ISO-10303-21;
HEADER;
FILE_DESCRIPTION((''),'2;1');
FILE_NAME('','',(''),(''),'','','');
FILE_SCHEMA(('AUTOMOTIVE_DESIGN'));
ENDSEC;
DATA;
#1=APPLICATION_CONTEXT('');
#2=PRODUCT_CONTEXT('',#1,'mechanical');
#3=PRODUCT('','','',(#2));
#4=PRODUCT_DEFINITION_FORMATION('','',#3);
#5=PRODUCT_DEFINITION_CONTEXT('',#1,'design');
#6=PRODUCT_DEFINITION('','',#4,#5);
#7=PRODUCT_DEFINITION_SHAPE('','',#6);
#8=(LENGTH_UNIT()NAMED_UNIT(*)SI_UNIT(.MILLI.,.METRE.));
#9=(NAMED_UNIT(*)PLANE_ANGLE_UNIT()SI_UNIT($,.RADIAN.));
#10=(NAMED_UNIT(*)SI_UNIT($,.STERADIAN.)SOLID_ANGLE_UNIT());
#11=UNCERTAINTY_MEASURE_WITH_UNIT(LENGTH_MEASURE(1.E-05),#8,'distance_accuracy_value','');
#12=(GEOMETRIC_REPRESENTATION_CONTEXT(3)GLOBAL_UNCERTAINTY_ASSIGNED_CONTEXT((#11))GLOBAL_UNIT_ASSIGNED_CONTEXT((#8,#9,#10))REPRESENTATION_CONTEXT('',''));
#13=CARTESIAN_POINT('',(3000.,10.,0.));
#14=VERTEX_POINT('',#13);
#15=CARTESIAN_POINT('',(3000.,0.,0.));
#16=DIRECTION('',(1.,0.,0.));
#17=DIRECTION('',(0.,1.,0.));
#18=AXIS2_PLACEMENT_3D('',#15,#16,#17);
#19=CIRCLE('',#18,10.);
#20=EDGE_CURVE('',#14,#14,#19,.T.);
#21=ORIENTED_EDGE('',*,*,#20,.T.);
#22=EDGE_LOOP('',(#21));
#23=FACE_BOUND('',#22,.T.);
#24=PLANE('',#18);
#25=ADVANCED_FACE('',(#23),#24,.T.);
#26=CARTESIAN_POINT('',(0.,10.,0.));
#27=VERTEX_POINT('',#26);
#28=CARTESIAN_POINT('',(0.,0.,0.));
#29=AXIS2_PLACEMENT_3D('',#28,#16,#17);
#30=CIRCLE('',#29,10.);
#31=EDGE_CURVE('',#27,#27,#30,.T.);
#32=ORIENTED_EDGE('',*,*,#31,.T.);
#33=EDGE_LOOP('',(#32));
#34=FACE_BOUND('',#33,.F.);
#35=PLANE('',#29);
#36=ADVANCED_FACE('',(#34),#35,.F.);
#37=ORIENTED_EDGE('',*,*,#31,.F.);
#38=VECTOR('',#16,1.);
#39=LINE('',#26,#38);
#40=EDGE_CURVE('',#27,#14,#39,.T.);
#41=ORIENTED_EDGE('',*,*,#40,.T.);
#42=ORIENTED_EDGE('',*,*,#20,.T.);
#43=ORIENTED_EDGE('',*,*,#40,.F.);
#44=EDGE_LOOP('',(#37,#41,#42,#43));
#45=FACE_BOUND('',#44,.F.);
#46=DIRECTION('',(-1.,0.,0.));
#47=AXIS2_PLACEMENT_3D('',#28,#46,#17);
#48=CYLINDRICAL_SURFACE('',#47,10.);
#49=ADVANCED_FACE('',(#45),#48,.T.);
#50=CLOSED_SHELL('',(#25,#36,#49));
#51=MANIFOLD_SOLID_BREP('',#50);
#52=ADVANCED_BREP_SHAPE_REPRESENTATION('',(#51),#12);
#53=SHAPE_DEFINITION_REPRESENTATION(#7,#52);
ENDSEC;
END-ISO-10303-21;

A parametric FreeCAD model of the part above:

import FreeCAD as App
import Part
import Sketcher
from FreeCAD import Vector
Q = App.Units.Quantity

doc = App.newDocument("Part")
body = doc.addObject("PartDesign::Body", "Body")

# Sketch on YZ plane
sketch1 = body.newObject("Sketcher::SketchObject", "Sketch")
sketch1.AttachmentSupport = (doc.getObject("YZ_Plane"), [""])
sketch1.MapMode = "FlatFace"
sketch1.addGeometry(Part.Circle(Vector(0, 0, 0), Vector(0, 0, 1), 10), False)
sketch1.addConstraint(Sketcher.Constraint("Coincident", 0, 3, -1, 1))
sketch1.addConstraint(Sketcher.Constraint("Diameter", 0, Q("20 mm")))
pad1 = body.newObject("PartDesign::Pad", "Pad")
pad1.Profile = sketch1
pad1.Length = 3000

doc.recompute()
